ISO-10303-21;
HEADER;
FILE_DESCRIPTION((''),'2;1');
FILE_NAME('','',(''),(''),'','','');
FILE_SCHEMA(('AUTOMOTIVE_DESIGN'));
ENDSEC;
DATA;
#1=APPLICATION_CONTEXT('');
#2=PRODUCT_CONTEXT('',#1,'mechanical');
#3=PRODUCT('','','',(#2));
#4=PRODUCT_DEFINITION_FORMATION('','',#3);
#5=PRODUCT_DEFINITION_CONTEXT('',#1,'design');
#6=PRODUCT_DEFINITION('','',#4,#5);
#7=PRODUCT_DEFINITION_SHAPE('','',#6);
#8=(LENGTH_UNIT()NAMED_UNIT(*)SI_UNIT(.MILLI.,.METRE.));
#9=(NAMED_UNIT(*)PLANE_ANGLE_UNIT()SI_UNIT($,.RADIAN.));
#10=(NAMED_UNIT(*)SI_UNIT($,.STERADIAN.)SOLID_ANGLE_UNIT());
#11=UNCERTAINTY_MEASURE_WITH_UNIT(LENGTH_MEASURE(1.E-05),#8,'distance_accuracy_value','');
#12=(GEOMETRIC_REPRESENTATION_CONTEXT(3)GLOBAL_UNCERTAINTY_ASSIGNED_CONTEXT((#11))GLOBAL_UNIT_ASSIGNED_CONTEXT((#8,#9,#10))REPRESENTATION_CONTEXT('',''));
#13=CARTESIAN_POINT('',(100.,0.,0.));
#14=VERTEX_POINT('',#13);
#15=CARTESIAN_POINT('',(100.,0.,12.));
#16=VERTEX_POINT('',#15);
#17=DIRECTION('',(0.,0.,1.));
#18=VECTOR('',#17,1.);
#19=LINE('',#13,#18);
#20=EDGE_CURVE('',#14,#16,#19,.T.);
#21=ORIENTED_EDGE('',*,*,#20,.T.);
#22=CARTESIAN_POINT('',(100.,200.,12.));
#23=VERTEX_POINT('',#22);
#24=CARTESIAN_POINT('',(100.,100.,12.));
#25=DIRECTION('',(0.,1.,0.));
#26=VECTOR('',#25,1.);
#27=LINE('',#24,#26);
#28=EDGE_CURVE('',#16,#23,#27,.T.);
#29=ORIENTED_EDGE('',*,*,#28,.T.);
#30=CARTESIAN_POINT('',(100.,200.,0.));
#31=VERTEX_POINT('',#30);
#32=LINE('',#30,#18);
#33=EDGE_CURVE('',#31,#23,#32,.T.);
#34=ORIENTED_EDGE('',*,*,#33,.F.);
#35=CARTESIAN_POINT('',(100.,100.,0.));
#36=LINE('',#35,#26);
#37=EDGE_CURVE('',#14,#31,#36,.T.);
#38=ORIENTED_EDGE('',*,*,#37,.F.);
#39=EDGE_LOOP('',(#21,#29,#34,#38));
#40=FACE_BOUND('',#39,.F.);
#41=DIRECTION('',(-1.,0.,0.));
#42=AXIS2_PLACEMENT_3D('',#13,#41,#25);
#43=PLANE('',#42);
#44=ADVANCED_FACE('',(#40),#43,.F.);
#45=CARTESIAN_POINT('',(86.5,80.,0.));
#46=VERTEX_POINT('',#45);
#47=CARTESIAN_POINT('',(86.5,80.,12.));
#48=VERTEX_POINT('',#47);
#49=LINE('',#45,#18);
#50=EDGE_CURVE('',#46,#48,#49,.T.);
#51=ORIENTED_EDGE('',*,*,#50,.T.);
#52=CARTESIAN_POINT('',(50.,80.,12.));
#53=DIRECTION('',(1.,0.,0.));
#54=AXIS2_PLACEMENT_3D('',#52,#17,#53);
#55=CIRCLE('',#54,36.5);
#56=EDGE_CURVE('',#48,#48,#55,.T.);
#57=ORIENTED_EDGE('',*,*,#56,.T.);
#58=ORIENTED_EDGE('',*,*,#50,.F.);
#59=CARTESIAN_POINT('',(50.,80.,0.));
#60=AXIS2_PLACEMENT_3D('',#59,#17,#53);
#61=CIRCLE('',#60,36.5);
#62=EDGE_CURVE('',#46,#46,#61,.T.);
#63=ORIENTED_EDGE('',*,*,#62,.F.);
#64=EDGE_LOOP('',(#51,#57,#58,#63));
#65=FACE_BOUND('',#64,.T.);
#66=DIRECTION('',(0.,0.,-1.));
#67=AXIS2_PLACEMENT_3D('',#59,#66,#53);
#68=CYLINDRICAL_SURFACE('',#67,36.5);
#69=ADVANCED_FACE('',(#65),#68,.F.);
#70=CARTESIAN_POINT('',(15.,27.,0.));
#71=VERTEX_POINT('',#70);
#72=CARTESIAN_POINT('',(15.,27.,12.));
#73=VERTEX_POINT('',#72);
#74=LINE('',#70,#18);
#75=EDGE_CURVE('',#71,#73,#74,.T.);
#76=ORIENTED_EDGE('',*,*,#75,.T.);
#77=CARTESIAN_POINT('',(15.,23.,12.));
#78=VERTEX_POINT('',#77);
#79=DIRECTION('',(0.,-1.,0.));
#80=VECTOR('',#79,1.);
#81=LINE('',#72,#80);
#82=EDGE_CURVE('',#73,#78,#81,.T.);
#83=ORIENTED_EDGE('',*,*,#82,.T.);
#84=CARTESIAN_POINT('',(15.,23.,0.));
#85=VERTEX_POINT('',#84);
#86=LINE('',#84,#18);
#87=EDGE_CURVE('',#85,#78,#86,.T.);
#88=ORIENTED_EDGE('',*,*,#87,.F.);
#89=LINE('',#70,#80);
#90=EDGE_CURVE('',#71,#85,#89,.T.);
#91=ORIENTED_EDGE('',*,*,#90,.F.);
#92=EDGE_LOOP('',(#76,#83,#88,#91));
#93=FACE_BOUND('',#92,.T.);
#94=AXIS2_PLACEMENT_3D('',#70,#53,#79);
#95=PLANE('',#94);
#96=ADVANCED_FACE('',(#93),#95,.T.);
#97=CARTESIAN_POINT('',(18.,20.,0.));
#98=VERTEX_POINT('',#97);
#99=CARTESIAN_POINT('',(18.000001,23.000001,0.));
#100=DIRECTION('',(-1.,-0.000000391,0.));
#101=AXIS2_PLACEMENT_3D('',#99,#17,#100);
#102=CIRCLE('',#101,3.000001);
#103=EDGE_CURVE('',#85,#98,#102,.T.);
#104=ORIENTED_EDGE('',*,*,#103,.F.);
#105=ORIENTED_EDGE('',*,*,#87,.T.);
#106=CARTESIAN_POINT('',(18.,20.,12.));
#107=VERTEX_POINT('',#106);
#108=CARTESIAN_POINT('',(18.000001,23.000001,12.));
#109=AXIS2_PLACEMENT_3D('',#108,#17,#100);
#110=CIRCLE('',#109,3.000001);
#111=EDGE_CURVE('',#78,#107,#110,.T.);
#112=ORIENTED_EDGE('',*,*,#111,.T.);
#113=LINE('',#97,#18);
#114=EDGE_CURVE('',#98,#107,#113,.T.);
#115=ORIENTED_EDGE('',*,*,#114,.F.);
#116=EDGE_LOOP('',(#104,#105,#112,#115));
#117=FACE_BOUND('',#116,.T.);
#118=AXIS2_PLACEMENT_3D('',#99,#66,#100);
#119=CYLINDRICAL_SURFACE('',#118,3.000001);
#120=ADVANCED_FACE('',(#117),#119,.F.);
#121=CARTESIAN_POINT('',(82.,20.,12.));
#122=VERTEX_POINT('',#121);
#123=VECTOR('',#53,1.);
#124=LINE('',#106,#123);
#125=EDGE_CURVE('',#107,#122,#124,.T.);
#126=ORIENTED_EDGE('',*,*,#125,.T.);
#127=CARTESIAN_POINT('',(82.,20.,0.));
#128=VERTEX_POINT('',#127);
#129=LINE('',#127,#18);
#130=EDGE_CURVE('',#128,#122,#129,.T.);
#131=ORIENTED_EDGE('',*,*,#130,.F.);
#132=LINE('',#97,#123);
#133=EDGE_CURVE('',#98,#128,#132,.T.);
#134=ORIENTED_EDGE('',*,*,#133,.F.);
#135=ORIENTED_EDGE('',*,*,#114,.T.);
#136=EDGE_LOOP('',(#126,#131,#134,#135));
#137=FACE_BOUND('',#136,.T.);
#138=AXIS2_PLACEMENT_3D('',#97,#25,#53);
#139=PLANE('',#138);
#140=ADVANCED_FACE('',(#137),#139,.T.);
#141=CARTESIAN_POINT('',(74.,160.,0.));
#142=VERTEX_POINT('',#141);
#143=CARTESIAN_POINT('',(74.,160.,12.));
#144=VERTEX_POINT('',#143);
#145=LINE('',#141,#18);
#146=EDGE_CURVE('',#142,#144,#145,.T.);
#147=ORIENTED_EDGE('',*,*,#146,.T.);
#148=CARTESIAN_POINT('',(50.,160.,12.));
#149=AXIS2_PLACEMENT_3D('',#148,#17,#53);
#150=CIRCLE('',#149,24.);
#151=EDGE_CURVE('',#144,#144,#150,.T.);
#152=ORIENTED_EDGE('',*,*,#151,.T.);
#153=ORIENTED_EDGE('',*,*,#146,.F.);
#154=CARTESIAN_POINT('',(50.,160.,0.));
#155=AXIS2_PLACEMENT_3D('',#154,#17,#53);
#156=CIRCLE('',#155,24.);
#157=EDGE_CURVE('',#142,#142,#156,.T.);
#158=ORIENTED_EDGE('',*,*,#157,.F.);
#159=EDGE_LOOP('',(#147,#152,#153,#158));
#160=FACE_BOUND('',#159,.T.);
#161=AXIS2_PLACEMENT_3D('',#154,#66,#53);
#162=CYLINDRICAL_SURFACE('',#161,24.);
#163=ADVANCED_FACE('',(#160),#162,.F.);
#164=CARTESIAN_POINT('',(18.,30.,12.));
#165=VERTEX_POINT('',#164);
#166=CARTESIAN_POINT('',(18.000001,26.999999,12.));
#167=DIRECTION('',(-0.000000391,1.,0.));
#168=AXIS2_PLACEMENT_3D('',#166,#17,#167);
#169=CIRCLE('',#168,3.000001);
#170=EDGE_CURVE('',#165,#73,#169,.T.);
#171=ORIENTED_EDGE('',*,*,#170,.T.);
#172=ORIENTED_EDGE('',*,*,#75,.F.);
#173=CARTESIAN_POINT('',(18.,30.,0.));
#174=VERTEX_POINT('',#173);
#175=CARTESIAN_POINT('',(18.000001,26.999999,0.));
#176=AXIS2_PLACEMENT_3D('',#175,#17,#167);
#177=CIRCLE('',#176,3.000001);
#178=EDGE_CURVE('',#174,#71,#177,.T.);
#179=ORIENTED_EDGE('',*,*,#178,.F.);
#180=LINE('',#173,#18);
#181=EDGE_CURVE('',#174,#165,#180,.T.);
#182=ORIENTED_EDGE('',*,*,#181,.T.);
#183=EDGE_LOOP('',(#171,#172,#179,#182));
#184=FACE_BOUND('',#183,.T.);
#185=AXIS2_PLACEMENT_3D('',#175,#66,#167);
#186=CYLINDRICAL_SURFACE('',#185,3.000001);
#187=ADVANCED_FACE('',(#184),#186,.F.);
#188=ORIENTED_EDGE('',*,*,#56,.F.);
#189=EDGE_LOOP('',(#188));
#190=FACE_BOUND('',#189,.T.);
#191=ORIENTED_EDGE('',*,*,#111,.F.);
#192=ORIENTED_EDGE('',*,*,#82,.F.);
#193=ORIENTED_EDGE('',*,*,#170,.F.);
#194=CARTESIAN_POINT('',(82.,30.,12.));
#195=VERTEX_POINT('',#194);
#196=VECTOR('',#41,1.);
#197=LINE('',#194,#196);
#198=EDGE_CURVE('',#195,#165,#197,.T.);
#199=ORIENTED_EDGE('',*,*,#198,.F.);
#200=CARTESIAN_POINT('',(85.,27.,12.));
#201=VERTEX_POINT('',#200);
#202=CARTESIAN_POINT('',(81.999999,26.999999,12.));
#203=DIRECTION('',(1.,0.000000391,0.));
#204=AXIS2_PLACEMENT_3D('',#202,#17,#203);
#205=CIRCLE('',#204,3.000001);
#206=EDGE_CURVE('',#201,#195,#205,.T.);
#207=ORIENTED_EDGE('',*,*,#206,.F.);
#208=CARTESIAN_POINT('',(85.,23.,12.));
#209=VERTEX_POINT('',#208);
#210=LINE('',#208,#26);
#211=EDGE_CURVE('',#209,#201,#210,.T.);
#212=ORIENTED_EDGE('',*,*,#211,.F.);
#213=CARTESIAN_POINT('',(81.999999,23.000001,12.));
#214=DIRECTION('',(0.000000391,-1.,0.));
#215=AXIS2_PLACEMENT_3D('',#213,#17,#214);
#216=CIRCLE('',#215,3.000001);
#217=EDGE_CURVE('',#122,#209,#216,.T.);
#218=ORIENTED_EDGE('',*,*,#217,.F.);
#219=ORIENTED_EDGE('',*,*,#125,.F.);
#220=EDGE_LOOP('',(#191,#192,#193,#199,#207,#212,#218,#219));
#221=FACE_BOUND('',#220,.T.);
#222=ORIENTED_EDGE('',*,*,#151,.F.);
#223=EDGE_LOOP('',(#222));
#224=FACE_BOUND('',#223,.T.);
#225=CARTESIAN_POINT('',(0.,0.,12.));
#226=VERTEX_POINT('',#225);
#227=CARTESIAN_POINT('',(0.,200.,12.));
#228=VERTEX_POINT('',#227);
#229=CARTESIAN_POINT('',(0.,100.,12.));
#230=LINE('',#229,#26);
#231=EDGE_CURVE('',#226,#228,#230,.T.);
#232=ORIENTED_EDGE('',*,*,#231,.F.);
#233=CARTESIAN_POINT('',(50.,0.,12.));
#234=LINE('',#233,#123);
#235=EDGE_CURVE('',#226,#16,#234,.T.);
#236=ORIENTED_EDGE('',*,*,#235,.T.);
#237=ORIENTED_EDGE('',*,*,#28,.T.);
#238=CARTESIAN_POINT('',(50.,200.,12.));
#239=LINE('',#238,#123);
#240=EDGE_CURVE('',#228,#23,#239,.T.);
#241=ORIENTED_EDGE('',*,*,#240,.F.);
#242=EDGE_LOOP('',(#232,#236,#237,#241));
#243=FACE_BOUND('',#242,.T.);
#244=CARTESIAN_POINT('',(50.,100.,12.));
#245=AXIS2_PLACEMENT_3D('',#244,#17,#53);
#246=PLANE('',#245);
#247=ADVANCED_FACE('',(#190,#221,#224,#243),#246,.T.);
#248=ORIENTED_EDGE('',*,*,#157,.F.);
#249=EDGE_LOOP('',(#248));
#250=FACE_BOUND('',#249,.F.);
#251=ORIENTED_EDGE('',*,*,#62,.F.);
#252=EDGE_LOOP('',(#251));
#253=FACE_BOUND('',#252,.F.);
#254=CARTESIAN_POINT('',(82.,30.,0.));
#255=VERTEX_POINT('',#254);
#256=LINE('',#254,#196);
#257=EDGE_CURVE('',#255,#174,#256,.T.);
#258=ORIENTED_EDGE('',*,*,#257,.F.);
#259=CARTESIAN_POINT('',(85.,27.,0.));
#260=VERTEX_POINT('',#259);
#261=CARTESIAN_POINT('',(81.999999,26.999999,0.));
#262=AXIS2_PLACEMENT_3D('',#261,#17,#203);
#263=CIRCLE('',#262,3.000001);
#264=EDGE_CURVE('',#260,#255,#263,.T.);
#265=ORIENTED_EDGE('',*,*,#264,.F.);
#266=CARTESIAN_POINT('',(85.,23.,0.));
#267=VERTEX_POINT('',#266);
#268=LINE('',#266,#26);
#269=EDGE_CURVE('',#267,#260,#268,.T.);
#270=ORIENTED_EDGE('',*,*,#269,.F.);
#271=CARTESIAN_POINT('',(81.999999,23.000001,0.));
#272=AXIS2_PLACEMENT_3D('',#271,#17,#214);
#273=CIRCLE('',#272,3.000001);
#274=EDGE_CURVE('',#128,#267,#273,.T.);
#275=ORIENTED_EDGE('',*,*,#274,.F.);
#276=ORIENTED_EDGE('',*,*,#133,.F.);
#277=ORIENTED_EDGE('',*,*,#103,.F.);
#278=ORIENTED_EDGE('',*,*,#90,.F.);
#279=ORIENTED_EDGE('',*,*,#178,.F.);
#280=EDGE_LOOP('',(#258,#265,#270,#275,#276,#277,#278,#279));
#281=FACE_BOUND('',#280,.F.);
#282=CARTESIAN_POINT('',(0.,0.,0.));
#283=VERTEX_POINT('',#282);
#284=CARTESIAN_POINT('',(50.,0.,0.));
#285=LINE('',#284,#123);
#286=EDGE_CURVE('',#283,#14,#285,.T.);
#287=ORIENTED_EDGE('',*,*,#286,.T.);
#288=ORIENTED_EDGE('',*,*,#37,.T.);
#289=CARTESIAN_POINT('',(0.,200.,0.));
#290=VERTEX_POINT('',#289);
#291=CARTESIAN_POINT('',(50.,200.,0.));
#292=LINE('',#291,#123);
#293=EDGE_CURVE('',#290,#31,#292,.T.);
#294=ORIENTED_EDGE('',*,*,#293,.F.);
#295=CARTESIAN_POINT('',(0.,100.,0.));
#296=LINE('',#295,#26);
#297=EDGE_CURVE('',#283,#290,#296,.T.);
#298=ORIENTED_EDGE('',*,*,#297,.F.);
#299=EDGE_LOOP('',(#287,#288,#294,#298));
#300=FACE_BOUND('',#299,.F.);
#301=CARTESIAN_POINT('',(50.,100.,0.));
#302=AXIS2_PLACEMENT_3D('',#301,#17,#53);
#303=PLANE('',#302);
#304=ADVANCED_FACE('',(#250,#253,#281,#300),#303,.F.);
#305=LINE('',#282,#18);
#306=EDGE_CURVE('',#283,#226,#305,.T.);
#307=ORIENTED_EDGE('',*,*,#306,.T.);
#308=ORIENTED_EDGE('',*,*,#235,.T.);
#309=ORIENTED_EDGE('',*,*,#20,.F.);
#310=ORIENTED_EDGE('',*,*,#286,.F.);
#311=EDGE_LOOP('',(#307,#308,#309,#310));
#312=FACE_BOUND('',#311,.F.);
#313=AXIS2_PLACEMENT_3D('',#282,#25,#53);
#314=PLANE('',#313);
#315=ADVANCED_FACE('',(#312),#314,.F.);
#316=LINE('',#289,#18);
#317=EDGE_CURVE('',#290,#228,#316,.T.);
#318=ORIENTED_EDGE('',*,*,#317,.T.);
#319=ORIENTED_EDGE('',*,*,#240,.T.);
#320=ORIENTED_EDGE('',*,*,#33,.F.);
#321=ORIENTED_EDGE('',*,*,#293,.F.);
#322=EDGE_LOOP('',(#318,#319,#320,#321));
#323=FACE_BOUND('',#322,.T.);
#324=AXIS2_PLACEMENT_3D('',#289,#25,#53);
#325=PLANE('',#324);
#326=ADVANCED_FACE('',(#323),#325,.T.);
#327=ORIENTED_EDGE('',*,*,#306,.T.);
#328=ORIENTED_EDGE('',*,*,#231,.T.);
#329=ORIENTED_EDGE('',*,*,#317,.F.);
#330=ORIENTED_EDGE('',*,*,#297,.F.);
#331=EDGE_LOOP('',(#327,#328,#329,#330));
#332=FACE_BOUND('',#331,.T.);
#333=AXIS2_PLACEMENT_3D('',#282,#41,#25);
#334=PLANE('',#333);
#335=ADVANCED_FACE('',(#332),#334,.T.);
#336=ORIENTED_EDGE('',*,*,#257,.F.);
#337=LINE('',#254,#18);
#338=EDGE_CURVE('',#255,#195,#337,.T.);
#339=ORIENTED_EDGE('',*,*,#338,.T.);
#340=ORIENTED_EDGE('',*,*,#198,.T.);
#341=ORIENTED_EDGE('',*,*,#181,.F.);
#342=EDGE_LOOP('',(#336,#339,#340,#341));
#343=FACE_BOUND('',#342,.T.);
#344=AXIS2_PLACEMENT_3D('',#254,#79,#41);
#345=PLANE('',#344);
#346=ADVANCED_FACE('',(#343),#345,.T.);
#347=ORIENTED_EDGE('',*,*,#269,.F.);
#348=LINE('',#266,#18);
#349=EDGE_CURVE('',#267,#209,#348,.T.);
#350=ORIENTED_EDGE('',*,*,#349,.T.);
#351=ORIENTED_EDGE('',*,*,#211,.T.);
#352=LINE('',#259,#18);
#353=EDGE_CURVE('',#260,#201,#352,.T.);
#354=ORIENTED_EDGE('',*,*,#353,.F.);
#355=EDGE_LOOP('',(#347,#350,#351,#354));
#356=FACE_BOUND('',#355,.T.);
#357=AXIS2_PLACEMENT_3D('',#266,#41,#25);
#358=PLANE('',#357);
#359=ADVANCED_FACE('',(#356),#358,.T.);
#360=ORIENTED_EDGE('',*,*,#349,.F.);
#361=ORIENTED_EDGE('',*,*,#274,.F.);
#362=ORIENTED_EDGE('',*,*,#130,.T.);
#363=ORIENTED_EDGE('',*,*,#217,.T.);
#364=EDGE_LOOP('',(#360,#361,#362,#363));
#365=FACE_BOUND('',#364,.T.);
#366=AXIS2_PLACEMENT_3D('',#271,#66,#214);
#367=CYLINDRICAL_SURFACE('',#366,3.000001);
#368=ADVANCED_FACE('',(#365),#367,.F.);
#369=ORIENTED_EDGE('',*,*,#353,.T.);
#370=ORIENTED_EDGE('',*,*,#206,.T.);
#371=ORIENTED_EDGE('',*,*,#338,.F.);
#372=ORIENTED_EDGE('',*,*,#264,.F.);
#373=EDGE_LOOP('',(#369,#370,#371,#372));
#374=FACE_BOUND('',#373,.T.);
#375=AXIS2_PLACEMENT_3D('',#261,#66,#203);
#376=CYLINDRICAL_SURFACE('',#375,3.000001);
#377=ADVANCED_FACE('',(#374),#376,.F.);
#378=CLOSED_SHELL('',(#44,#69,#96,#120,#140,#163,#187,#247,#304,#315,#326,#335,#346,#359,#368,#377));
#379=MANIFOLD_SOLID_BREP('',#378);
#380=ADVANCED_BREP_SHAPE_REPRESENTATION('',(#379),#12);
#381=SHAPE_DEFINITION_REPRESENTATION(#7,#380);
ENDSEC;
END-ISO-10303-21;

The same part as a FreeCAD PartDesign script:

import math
import FreeCAD as App
import Part
import Sketcher
from FreeCAD import Vector


def add_polygon(sketch, points):
    """Adds a closed chain of lines whose ends are joined by coincident constraints."""
    first, n = sketch.GeometryCount, len(points)
    for a, b in zip(points, points[1:] + points[:1]):
        sketch.addGeometry(Part.LineSegment(App.Vector(*a, 0), App.Vector(*b, 0)), False)
    for i in range(n):
        sketch.addConstraint(Sketcher.Constraint("Coincident", first + i, 2, first + (i + 1) % n, 1))

doc = App.newDocument("Part")
body = doc.addObject("PartDesign::Body", "Body")

sketch1 = body.newObject("Sketcher::SketchObject", "Sketch")
sketch1.AttachmentSupport = (doc.getObject("XY_Plane"), [""])
sketch1.MapMode = "FlatFace"
add_polygon(sketch1, [(0, 200), (0, 0), (100, 0), (100, 200)])
sketch1.addGeometry(Part.LineSegment(Vector(82, 20, 0), Vector(18, 20, 0)), False)
sketch1.addGeometry(Part.ArcOfCircle(Part.Circle(Vector(18, 23, 0), Vector(0, 0, 1), 3), math.radians(-180), math.radians(-90)), False)
sketch1.addGeometry(Part.LineSegment(Vector(15, 23, 0), Vector(15, 27, 0)), False)
sketch1.addGeometry(Part.ArcOfCircle(Part.Circle(Vector(18, 27, 0), Vector(0, 0, 1), 3), math.radians(90), math.radians(180)), False)
sketch1.addGeometry(Part.LineSegment(Vector(18, 30, 0), Vector(82, 30, 0)), False)
sketch1.addGeometry(Part.ArcOfCircle(Part.Circle(Vector(82, 27, 0), Vector(0, 0, 1), 3), math.radians(0), math.radians(90)), False)
sketch1.addGeometry(Part.LineSegment(Vector(85, 27, 0), Vector(85, 23, 0)), False)
sketch1.addGeometry(Part.ArcOfCircle(Part.Circle(Vector(82, 23, 0), Vector(0, 0, 1), 3), math.radians(-90), math.radians(0)), False)
sketch1.addGeometry(Part.Circle(Vector(50, 80, 0), Vector(0, 0, 1), 36.5), False)
sketch1.addGeometry(Part.Circle(Vector(50, 160, 0), Vector(0, 0, 1), 24), False)
sketch1.addConstraint([
    Sketcher.Constraint("Tangent", 4, 2, 5, 2),
    Sketcher.Constraint("Tangent", 5, 1, 6, 1),
    Sketcher.Constraint("Tangent", 6, 2, 7, 2),
    Sketcher.Constraint("Tangent", 7, 1, 8, 1),
    Sketcher.Constraint("Tangent", 8, 2, 9, 2),
    Sketcher.Constraint("Tangent", 9, 1, 10, 1),
    Sketcher.Constraint("Tangent", 10, 2, 11, 2),
    Sketcher.Constraint("Tangent", 11, 1, 4, 1),
    Sketcher.Constraint("Vertical", 0),
    Sketcher.Constraint("Horizontal", 1),
    Sketcher.Constraint("Vertical", 2),
    Sketcher.Constraint("Horizontal", 3),
    Sketcher.Constraint("Horizontal", 4),
    Sketcher.Constraint("Vertical", 6),
    Sketcher.Constraint("Horizontal", 8),
    Sketcher.Constraint("Vertical", 10),
    Sketcher.Constraint("Coincident", 0, 2, -1, 1),
    Sketcher.Constraint("Equal", 5, 7),
    Sketcher.Constraint("Equal", 7, 9),
    Sketcher.Constraint("Equal", 9, 11),
    Sketcher.Constraint("Vertical", 12, 3, 13, 3),
    Sketcher.Constraint("Diameter", 12, 73.0),
    Sketcher.Constraint("Diameter", 13, 48.0),
    Sketcher.Constraint("Radius", 5, 3.000001),
    Sketcher.Constraint("DistanceX", 1, 1, 1, 2, 100.0),
    Sketcher.Constraint("DistanceX", 4, 2, 4, 1, 64.0),
    Sketcher.Constraint("DistanceY", 0, 2, 0, 1, 200.0),
    Sketcher.Constraint("DistanceY", 6, 1, 6, 2, 4.0),
    Sketcher.Constraint("DistanceX", -1, 1, 5, 3, 18.000001),
    Sketcher.Constraint("DistanceY", -1, 1, 5, 3, 23.000001),
    Sketcher.Constraint("DistanceX", -1, 1, 12, 3, 50.0),
    Sketcher.Constraint("DistanceY", -1, 1, 12, 3, 80.0),
    Sketcher.Constraint("DistanceY", -1, 1, 13, 3, 160.0),
])
pad1 = body.newObject("PartDesign::Pad", "Pad")
pad1.Profile = sketch1
pad1.Length = 12

doc.recompute()
